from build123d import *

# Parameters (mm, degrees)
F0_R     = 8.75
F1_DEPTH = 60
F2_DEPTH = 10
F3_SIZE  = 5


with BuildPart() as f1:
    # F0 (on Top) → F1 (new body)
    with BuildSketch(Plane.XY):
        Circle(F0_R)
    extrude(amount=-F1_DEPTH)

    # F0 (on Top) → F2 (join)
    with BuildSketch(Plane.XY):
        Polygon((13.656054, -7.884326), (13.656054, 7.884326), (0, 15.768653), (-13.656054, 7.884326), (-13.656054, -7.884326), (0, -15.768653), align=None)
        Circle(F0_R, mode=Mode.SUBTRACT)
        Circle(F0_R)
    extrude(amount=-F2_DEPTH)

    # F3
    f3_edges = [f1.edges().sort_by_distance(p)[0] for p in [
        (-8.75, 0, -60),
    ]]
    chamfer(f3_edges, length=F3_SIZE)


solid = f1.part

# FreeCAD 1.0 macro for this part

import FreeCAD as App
import Part
import Sketcher

V = App.Vector
Q = App.Units.Quantity


def edges_at(feature, points):
    """Names of the edges that pass closest to the given points."""
    edges = feature.Shape.Edges
    near = lambda p: min(range(len(edges)), key=lambda i: edges[i].distToShape(Part.Vertex(*p))[0])
    return sorted({f"Edge{near(p) + 1}" for p in points})

doc = App.newDocument("Part")
body = doc.addObject("PartDesign::Body", "Body")

# Sketch on XY plane
sketch1 = body.newObject("Sketcher::SketchObject", "Sketch")
sketch1.AttachmentSupport = (doc.getObject("XY_Plane"), [""])
sketch1.MapMode = "FlatFace"
sketch1.addGeometry(Part.Circle(V(0, 0, 0), V(0, 0, 1), 8.75), False)
sketch1.addConstraint(Sketcher.Constraint("Coincident", 0, 3, -1, 1))
sketch1.addConstraint(Sketcher.Constraint("Diameter", 0, 17.5))
pad1 = body.newObject("PartDesign::Pad", "Pad")
pad1.Profile = sketch1
pad1.Length = 60
pad1.Reversed = True

# Sketch on XY plane
sketch2 = body.newObject("Sketcher::SketchObject", "Sketch001")
sketch2.AttachmentSupport = (doc.getObject("XY_Plane"), [""])
sketch2.MapMode = "FlatFace"
sketch2.addGeometry(Part.LineSegment(V(13.656054, -7.884326, 0), V(13.656054, 7.884326, 0)), False)
sketch2.addGeometry(Part.LineSegment(V(13.656054, 7.884326, 0), V(0, 15.768653, 0)), False)
sketch2.addGeometry(Part.LineSegment(V(0, 15.768653, 0), V(-13.656054, 7.884326, 0)), False)
sketch2.addGeometry(Part.LineSegment(V(-13.656054, 7.884326, 0), V(-13.656054, -7.884326, 0)), False)
sketch2.addGeometry(Part.LineSegment(V(-13.656054, -7.884326, 0), V(0, -15.768653, 0)), False)
sketch2.addGeometry(Part.LineSegment(V(0, -15.768653, 0), V(13.656054, -7.884326, 0)), False)
sketch2.addConstraint(Sketcher.Constraint("Coincident", 0, 2, 1, 1))
sketch2.addConstraint(Sketcher.Constraint("Coincident", 1, 2, 2, 1))
sketch2.addConstraint(Sketcher.Constraint("Coincident", 2, 2, 3, 1))
sketch2.addConstraint(Sketcher.Constraint("Coincident", 3, 2, 4, 1))
sketch2.addConstraint(Sketcher.Constraint("Coincident", 4, 2, 5, 1))
sketch2.addConstraint(Sketcher.Constraint("Coincident", 5, 2, 0, 1))
sketch2.addConstraint(Sketcher.Constraint("Vertical", 0))
sketch2.addConstraint(Sketcher.Constraint("Vertical", 3))
sketch2.addConstraint(Sketcher.Constraint("Symmetric", 0, 2, 3, 2, -1, 1))
sketch2.addConstraint(Sketcher.Constraint("Symmetric", 1, 2, 4, 2, -1, 1))
sketch2.addConstraint(Sketcher.Constraint("PointOnObject", 1, 2, -2))
sketch2.addConstraint(Sketcher.Constraint("Parallel", 2, 5))
sketch2.addConstraint(Sketcher.Constraint("Horizontal", 0, 2, 2, 2))
sketch2.addConstraint(Sketcher.Constraint("Angle", 1, Q("149.999998 deg")))
sketch2.addConstraint(Sketcher.Constraint("DistanceY", 0, 1, 0, 2, 15.768652))
sketch2.addConstraint(Sketcher.Constraint("DistanceY", 3, 2, 1, 2, 23.652979))
pad2 = body.newObject("PartDesign::Pad", "Pad001")
pad2.Profile = sketch2
pad2.Length = 10
pad2.Reversed = True
doc.recompute()

chamfer = body.newObject("PartDesign::Chamfer", "Chamfer")
chamfer.Base = (pad2, edges_at(pad2, [(-8.75, 0, -60)]))
chamfer.Size = 5

doc.recompute()
